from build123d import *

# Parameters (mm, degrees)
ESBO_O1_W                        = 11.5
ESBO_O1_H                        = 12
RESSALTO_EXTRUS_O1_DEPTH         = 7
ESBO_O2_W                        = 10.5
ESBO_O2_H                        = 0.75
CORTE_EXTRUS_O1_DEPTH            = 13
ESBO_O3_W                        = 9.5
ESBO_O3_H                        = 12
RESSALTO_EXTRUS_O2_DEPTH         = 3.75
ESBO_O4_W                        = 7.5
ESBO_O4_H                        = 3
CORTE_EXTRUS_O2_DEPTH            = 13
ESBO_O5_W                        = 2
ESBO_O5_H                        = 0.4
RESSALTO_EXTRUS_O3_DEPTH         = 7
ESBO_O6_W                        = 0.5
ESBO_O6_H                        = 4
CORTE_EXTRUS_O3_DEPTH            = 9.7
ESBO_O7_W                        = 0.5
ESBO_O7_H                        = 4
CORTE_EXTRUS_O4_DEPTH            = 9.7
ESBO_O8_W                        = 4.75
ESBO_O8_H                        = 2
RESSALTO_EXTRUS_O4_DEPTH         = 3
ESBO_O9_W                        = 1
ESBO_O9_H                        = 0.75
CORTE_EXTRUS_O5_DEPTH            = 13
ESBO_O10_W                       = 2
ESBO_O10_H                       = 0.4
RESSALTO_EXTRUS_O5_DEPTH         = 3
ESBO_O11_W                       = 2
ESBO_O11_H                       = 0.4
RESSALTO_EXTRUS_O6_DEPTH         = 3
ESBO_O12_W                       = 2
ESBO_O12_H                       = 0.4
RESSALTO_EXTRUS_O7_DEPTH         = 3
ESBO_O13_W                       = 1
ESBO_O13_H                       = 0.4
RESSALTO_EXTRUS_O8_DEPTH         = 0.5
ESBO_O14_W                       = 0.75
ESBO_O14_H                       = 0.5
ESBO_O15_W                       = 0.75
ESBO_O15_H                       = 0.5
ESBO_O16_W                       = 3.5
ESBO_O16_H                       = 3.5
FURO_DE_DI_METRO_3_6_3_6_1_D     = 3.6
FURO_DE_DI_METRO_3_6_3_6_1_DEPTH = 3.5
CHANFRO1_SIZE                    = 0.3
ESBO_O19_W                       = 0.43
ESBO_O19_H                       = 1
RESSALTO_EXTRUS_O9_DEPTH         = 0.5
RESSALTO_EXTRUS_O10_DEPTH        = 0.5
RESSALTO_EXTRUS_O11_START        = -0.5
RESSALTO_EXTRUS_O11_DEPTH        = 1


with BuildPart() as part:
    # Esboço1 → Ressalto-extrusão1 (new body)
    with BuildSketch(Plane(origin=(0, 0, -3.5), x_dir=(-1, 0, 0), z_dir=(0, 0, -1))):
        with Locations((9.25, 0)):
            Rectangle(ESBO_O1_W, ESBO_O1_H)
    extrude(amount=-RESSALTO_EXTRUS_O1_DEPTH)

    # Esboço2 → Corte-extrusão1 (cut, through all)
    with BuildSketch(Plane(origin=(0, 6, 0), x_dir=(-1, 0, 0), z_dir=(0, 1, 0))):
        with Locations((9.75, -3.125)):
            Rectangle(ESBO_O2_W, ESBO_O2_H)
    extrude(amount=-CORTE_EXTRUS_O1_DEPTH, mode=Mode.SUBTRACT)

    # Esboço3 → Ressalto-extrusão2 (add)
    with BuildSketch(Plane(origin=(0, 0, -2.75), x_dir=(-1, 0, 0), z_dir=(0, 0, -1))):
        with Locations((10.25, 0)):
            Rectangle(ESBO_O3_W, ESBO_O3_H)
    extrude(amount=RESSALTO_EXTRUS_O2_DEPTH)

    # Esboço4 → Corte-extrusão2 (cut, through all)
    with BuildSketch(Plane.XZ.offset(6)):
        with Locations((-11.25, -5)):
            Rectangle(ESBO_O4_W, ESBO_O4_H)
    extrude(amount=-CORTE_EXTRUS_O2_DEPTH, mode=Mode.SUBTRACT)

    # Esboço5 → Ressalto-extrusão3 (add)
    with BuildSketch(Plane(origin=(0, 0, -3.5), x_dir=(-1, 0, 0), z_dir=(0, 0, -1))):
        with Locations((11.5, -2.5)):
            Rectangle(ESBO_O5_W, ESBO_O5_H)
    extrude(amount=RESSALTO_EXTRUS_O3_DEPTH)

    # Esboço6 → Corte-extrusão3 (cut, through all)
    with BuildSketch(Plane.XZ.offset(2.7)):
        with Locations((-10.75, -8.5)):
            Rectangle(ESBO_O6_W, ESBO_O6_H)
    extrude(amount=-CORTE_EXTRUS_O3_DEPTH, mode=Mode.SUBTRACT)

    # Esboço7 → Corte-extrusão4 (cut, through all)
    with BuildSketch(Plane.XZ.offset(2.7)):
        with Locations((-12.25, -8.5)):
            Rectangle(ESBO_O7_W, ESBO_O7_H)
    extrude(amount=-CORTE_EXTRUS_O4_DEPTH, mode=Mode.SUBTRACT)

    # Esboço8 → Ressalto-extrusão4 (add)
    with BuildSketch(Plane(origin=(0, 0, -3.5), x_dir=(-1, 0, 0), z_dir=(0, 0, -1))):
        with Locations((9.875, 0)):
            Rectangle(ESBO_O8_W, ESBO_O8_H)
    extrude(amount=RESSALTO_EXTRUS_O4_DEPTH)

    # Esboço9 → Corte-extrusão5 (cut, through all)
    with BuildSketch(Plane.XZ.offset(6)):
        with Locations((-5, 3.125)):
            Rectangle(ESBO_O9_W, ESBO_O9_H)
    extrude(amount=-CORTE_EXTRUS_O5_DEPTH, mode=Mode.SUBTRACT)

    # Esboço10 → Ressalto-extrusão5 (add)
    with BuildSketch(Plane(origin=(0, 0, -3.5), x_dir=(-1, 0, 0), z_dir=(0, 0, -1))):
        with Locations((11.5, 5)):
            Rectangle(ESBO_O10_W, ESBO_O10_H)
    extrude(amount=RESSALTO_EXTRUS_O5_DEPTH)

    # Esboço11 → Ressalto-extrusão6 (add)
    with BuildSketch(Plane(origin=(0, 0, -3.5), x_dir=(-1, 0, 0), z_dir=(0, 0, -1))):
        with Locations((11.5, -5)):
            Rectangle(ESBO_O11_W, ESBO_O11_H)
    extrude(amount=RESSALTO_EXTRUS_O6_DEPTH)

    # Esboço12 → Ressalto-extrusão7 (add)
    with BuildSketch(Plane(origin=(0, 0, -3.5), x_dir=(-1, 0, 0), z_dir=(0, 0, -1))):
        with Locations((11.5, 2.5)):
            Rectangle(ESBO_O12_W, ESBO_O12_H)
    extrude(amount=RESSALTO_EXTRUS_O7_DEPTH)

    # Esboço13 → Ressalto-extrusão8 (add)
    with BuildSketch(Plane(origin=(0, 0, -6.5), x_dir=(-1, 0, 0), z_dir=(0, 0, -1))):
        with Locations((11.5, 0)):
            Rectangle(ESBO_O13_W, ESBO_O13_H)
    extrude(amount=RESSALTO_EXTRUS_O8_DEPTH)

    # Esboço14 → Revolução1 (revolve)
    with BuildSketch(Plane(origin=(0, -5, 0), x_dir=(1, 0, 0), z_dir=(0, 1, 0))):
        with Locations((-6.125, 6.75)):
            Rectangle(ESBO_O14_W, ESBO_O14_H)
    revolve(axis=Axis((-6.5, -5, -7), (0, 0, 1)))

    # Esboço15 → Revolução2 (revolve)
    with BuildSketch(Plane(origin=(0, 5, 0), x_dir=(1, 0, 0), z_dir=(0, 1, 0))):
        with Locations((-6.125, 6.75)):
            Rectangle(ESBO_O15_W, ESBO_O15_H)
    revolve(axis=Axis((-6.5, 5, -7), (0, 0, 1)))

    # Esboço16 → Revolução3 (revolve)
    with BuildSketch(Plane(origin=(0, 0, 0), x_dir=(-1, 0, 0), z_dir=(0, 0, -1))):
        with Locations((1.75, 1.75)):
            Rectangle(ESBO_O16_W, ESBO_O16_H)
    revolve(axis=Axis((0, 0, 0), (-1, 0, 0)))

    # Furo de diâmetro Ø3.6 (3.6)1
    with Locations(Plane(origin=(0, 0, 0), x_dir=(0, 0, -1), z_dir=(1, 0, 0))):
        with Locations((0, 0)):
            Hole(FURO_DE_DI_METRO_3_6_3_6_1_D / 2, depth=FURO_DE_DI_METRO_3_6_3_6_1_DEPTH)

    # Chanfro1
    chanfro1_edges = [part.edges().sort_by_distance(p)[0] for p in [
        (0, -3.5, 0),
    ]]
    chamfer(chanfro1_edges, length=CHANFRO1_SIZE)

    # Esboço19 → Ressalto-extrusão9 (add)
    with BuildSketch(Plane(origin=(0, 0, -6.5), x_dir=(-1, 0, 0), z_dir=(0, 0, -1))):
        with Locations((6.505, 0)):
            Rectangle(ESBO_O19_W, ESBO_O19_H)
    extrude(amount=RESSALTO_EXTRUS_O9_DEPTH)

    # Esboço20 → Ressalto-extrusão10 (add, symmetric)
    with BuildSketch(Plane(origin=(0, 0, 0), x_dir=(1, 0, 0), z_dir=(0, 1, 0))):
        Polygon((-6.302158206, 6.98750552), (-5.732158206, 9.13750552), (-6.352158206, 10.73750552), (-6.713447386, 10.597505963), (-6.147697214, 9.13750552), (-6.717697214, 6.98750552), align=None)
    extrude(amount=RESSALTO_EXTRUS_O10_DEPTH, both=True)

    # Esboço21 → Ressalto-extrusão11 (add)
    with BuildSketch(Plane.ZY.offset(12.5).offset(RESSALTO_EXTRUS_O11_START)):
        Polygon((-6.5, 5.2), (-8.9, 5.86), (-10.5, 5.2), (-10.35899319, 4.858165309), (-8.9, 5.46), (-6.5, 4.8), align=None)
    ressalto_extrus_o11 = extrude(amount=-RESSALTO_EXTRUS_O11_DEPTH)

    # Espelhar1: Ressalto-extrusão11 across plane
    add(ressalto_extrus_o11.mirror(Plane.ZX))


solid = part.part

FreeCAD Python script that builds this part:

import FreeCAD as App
import Part
import Sketcher

V = App.Vector
Q = App.Units.Quantity


def edges_at(feature, points):
    """Names of the edges that pass closest to the given points."""
    edges = feature.Shape.Edges
    near = lambda p: min(range(len(edges)), key=lambda i: edges[i].distToShape(Part.Vertex(*p))[0])
    return sorted({f"Edge{near(p) + 1}" for p in points})


def add_polygon(sketch, points):
    """Adds a closed chain of lines whose ends are joined by coincident constraints."""
    first, n = sketch.GeometryCount, len(points)
    for a, b in zip(points, points[1:] + points[:1]):
        sketch.addGeometry(Part.LineSegment(App.Vector(*a, 0), App.Vector(*b, 0)), False)
    for i in range(n):
        sketch.addConstraint(Sketcher.Constraint("Coincident", first + i, 2, first + (i + 1) % n, 1))

doc = App.newDocument("Part")
body = doc.addObject("PartDesign::Body", "Body")

# Sketch on XY plane
sketch1 = body.newObject("Sketcher::SketchObject", "Sketch")
sketch1.AttachmentSupport = (doc.getObject("XY_Plane"), [""])
sketch1.MapMode = "FlatFace"
sketch1.AttachmentOffset = App.Placement(V(0, 0, -3.5), App.Rotation())
add_polygon(sketch1, [(-3.5, 6), (-3.5, -6), (-15, -6), (-15, 6)])  # lines 0-3
sketch1.addConstraint([
    Sketcher.Constraint("Vertical", 0),
    Sketcher.Constraint("Horizontal", 1),
    Sketcher.Constraint("Vertical", 2),
    Sketcher.Constraint("Horizontal", 3),
    Sketcher.Constraint("DistanceY", 0, 2, 0, 1, Q("12 mm")),
    Sketcher.Constraint("DistanceX", 1, 2, 1, 1, Q("11.5 mm")),
    Sketcher.Constraint("DistanceY", 0, 2, -1, 1, Q("6 mm")),
    Sketcher.Constraint("DistanceX", 1, 2, -1, 1, Q("15 mm")),
])
pad1 = body.newObject("PartDesign::Pad", "Pad")
pad1.Profile = sketch1
pad1.Length = 7

# Sketch on XZ plane
sketch2 = body.newObject("Sketcher::SketchObject", "Sketch001")
sketch2.AttachmentSupport = (doc.getObject("XZ_Plane"), [""])
sketch2.MapMode = "FlatFace"
sketch2.AttachmentOffset = App.Placement(V(0, 0, -6), App.Rotation())
add_polygon(sketch2, [(-4.5, -2.75), (-4.5, -3.5), (-15, -3.5), (-15, -2.75)])  # lines 0-3
sketch2.addConstraint([
    Sketcher.Constraint("Vertical", 0),
    Sketcher.Constraint("Horizontal", 1),
    Sketcher.Constraint("Vertical", 2),
    Sketcher.Constraint("Horizontal", 3),
    Sketcher.Constraint("DistanceX", 1, 2, 1, 1, Q("10.5 mm")),
    Sketcher.Constraint("DistanceX", 1, 2, -1, 1, Q("15 mm")),
    Sketcher.Constraint("DistanceY", 0, 2, 0, 1, Q("0.75 mm")),
    Sketcher.Constraint("DistanceY", 0, 2, -1, 1, Q("3.5 mm")),
])
pocket1 = body.newObject("PartDesign::Pocket", "Pocket")
pocket1.Profile = sketch2
pocket1.Type = "ThroughAll"
pocket1.Reversed = True

# Sketch on XY plane
sketch3 = body.newObject("Sketcher::SketchObject", "Sketch002")
sketch3.AttachmentSupport = (doc.getObject("XY_Plane"), [""])
sketch3.MapMode = "FlatFace"
sketch3.AttachmentOffset = App.Placement(V(0, 0, -2.75), App.Rotation())
add_polygon(sketch3, [(-5.5, 6), (-5.5, -6), (-15, -6), (-15, 6)])  # lines 0-3
sketch3.addConstraint([
    Sketcher.Constraint("Vertical", 0),
    Sketcher.Constraint("Horizontal", 1),
    Sketcher.Constraint("Vertical", 2),
    Sketcher.Constraint("Horizontal", 3),
    Sketcher.Constraint("DistanceY", 0, 2, 0, 1, Q("12 mm")),
    Sketcher.Constraint("DistanceX", 1, 2, 1, 1, Q("9.5 mm")),
    Sketcher.Constraint("DistanceY", 0, 2, -1, 1, Q("6 mm")),
    Sketcher.Constraint("DistanceX", 1, 2, -1, 1, Q("15 mm")),
])
pad2 = body.newObject("PartDesign::Pad", "Pad001")
pad2.Profile = sketch3
pad2.Length = 3.75
pad2.Reversed = True

# Sketch on XZ plane
sketch4 = body.newObject("Sketcher::SketchObject", "Sketch003")
sketch4.AttachmentSupport = (doc.getObject("XZ_Plane"), [""])
sketch4.MapMode = "FlatFace"
sketch4.AttachmentOffset = App.Placement(V(0, 0, 6), App.Rotation())
add_polygon(sketch4, [(-15, -3.5), (-15, -6.5), (-7.5, -6.5), (-7.5, -3.5)])  # lines 0-3
sketch4.addConstraint([
    Sketcher.Constraint("Vertical", 0),
    Sketcher.Constraint("Horizontal", 1),
    Sketcher.Constraint("Vertical", 2),
    Sketcher.Constraint("Horizontal", 3),
    Sketcher.Constraint("DistanceY", 0, 2, 0, 1, Q("3 mm")),
    Sketcher.Constraint("DistanceX", 1, 1, 1, 2, Q("7.5 mm")),
    Sketcher.Constraint("DistanceX", 0, 2, -1, 1, Q("15 mm")),
    Sketcher.Constraint("DistanceY", 0, 2, -1, 1, Q("6.5 mm")),
])
pocket2 = body.newObject("PartDesign::Pocket", "Pocket001")
pocket2.Profile = sketch4
pocket2.Type = "ThroughAll"

# Sketch on XY plane
sketch5 = body.newObject("Sketcher::SketchObject", "Sketch004")
sketch5.AttachmentSupport = (doc.getObject("XY_Plane"), [""])
sketch5.MapMode = "FlatFace"
sketch5.AttachmentOffset = App.Placement(V(0, 0, -3.5), App.Rotation())
add_polygon(sketch5, [(-10.5, -2.3), (-10.5, -2.7), (-12.5, -2.7), (-12.5, -2.3)])  # lines 0-3
sketch5.addConstraint([
    Sketcher.Constraint("Vertical", 0),
    Sketcher.Constraint("Horizontal", 1),
    Sketcher.Constraint("Vertical", 2),
    Sketcher.Constraint("Horizontal", 3),
    Sketcher.Constraint("DistanceX", 1, 2, 1, 1, Q("2 mm")),
    Sketcher.Constraint("DistanceY", 0, 2, 0, 1, Q("0.4 mm")),
    Sketcher.Constraint("DistanceX", 0, 2, -1, 1, Q("10.5 mm")),
    Sketcher.Constraint("DistanceY", 0, 2, -1, 1, Q("2.7 mm")),
])
pad3 = body.newObject("PartDesign::Pad", "Pad002")
pad3.Profile = sketch5
pad3.Length = 7
pad3.Reversed = True

# Sketch on XZ plane
sketch6 = body.newObject("Sketcher::SketchObject", "Sketch005")
sketch6.AttachmentSupport = (doc.getObject("XZ_Plane"), [""])
sketch6.MapMode = "FlatFace"
sketch6.AttachmentOffset = App.Placement(V(0, 0, 2.7), App.Rotation())
add_polygon(sketch6, [(-11, -6.5), (-11, -10.5), (-10.5, -10.5), (-10.5, -6.5)])  # lines 0-3
sketch6.addConstraint([
    Sketcher.Constraint("Vertical", 0),
    Sketcher.Constraint("Horizontal", 1),
    Sketcher.Constraint("Vertical", 2),
    Sketcher.Constraint("Horizontal", 3),
    Sketcher.Constraint("DistanceY", 0, 2, 0, 1, Q("4 mm")),
    Sketcher.Constraint("DistanceX", 1, 1, 1, 2, Q("0.5 mm")),
    Sketcher.Constraint("DistanceX", 0, 2, -1, 1, Q("11 mm")),
    Sketcher.Constraint("DistanceY", 0, 2, -1, 1, Q("10.5 mm")),
])
pocket3 = body.newObject("PartDesign::Pocket", "Pocket002")
pocket3.Profile = sketch6
pocket3.Type = "ThroughAll"

# Sketch on XZ plane
sketch7 = body.newObject("Sketcher::SketchObject", "Sketch006")
sketch7.AttachmentSupport = (doc.getObject("XZ_Plane"), [""])
sketch7.MapMode = "FlatFace"
sketch7.AttachmentOffset = App.Placement(V(0, 0, 2.7), App.Rotation())
add_polygon(sketch7, [(-12.5, -6.5), (-12.5, -10.5), (-12, -10.5), (-12, -6.5)])  # lines 0-3
sketch7.addConstraint([
    Sketcher.Constraint("Vertical", 0),
    Sketcher.Constraint("Horizontal", 1),
    Sketcher.Constraint("Vertical", 2),
    Sketcher.Constraint("Horizontal", 3),
    Sketcher.Constraint("DistanceY", 0, 2, 0, 1, Q("4 mm")),
    Sketcher.Constraint("DistanceX", 1, 1, 1, 2, Q("0.5 mm")),
    Sketcher.Constraint("DistanceX", 1, 2, -1, 1, Q("12 mm")),
    Sketcher.Constraint("DistanceY", 0, 2, -1, 1, Q("10.5 mm")),
])
pocket4 = body.newObject("PartDesign::Pocket", "Pocket003")
pocket4.Profile = sketch7
pocket4.Type = "ThroughAll"

# Sketch on XY plane
sketch8 = body.newObject("Sketcher::SketchObject", "Sketch007")
sketch8.AttachmentSupport = (doc.getObject("XY_Plane"), [""])
sketch8.MapMode = "FlatFace"
sketch8.AttachmentOffset = App.Placement(V(0, 0, -3.5), App.Rotation())
add_polygon(sketch8, [(-7.5, 1), (-7.5, -1), (-12.25, -1), (-12.25, 1)])  # lines 0-3
sketch8.addConstraint([
    Sketcher.Constraint("Vertical", 0),
    Sketcher.Constraint("Horizontal", 1),
    Sketcher.Constraint("Vertical", 2),
    Sketcher.Constraint("Horizontal", 3),
    Sketcher.Constraint("DistanceY", 0, 2, 0, 1, Q("2 mm")),
    Sketcher.Constraint("DistanceY", 0, 2, -1, 1, Q("1 mm")),
    Sketcher.Constraint("DistanceX", 1, 2, 1, 1, Q("4.75 mm")),
    Sketcher.Constraint("DistanceX", 0, 2, -1, 1, Q("7.5 mm")),
])
pad4 = body.newObject("PartDesign::Pad", "Pad003")
pad4.Profile = sketch8
pad4.Length = 3
pad4.Reversed = True

# Sketch on XZ plane
sketch9 = body.newObject("Sketcher::SketchObject", "Sketch008")
sketch9.AttachmentSupport = (doc.getObject("XZ_Plane"), [""])
sketch9.MapMode = "FlatFace"
sketch9.AttachmentOffset = App.Placement(V(0, 0, 6), App.Rotation())
add_polygon(sketch9, [(-5.5, 3.5), (-5.5, 2.75), (-4.5, 2.75), (-4.5, 3.5)])  # lines 0-3
sketch9.addConstraint([
    Sketcher.Constraint("Vertical", 0),
    Sketcher.Constraint("Horizontal", 1),
    Sketcher.Constraint("Vertical", 2),
    Sketcher.Constraint("Horizontal", 3),
    Sketcher.Constraint("DistanceX", 1, 1, 1, 2, Q("1 mm")),
    Sketcher.Constraint("DistanceY", 0, 2, 0, 1, Q("0.75 mm")),
    Sketcher.Constraint("DistanceX", 0, 2, -1, 1, Q("5.5 mm")),
    Sketcher.Constraint("DistanceY", -1, 1, 2, 2, Q("3.5 mm")),
])
pocket5 = body.newObject("PartDesign::Pocket", "Pocket004")
pocket5.Profile = sketch9
pocket5.Type = "ThroughAll"

# Sketch on XY plane
sketch10 = body.newObject("Sketcher::SketchObject", "Sketch009")
sketch10.AttachmentSupport = (doc.getObject("XY_Plane"), [""])
sketch10.MapMode = "FlatFace"
sketch10.AttachmentOffset = App.Placement(V(0, 0, -3.5), App.Rotation())
add_polygon(sketch10, [(-10.5, 5.2), (-10.5, 4.8), (-12.5, 4.8), (-12.5, 5.2)])  # lines 0-3
sketch10.addConstraint([
    Sketcher.Constraint("Vertical", 0),
    Sketcher.Constraint("Horizontal", 1),
    Sketcher.Constraint("Vertical", 2),
    Sketcher.Constraint("Horizontal", 3),
    Sketcher.Constraint("DistanceX", 1, 2, 1, 1, Q("2 mm")),
    Sketcher.Constraint("DistanceY", 0, 2, 0, 1, Q("0.4 mm")),
    Sketcher.Constraint("DistanceX", 0, 2, -1, 1, Q("10.5 mm")),
    Sketcher.Constraint("DistanceY", -1, 1, 0, 2, Q("4.8 mm")),
])
pad5 = body.newObject("PartDesign::Pad", "Pad004")
pad5.Profile = sketch10
pad5.Length = 3
pad5.Reversed = True

# Sketch on XY plane
sketch11 = body.newObject("Sketcher::SketchObject", "Sketch010")
sketch11.AttachmentSupport = (doc.getObject("XY_Plane"), [""])
sketch11.MapMode = "FlatFace"
sketch11.AttachmentOffset = App.Placement(V(0, 0, -3.5), App.Rotation())
add_polygon(sketch11, [(-10.5, -4.8), (-10.5, -5.2), (-12.5, -5.2), (-12.5, -4.8)])  # lines 0-3
sketch11.addConstraint([
    Sketcher.Constraint("Vertical", 0),
    Sketcher.Constraint("Horizontal", 1),
    Sketcher.Constraint("Vertical", 2),
    Sketcher.Constraint("Horizontal", 3),
    Sketcher.Constraint("DistanceX", 1, 2, 1, 1, Q("2 mm")),
    Sketcher.Constraint("DistanceY", 0, 2, 0, 1, Q("0.4 mm")),
    Sketcher.Constraint("DistanceX", 0, 2, -1, 1, Q("10.5 mm")),
    Sketcher.Constraint("DistanceY", 0, 2, -1, 1, Q("5.2 mm")),
])
pad6 = body.newObject("PartDesign::Pad", "Pad005")
pad6.Profile = sketch11
pad6.Length = 3
pad6.Reversed = True

# Sketch on XY plane
sketch12 = body.newObject("Sketcher::SketchObject", "Sketch011")
sketch12.AttachmentSupport = (doc.getObject("XY_Plane"), [""])
sketch12.MapMode = "FlatFace"
sketch12.AttachmentOffset = App.Placement(V(0, 0, -3.5), App.Rotation())
add_polygon(sketch12, [(-10.5, 2.7), (-10.5, 2.3), (-12.5, 2.3), (-12.5, 2.7)])  # lines 0-3
sketch12.addConstraint([
    Sketcher.Constraint("Vertical", 0),
    Sketcher.Constraint("Horizontal", 1),
    Sketcher.Constraint("Vertical", 2),
    Sketcher.Constraint("Horizontal", 3),
    Sketcher.Constraint("DistanceX", 1, 2, 1, 1, Q("2 mm")),
    Sketcher.Constraint("DistanceY", 0, 2, 0, 1, Q("0.4 mm")),
    Sketcher.Constraint("DistanceX", 0, 2, -1, 1, Q("10.5 mm")),
    Sketcher.Constraint("DistanceY", -1, 1, 0, 2, Q("2.3 mm")),
])
pad7 = body.newObject("PartDesign::Pad", "Pad006")
pad7.Profile = sketch12
pad7.Length = 3
pad7.Reversed = True

# Sketch on XY plane
sketch13 = body.newObject("Sketcher::SketchObject", "Sketch012")
sketch13.AttachmentSupport = (doc.getObject("XY_Plane"), [""])
sketch13.MapMode = "FlatFace"
sketch13.AttachmentOffset = App.Placement(V(0, 0, -6.5), App.Rotation())
add_polygon(sketch13, [(-11, 0.2), (-11, -0.2), (-12, -0.2), (-12, 0.2)])  # lines 0-3
sketch13.addConstraint([
    Sketcher.Constraint("Vertical", 0),
    Sketcher.Constraint("Horizontal", 1),
    Sketcher.Constraint("Vertical", 2),
    Sketcher.Constraint("Horizontal", 3),
    Sketcher.Constraint("DistanceX", 1, 2, 1, 1, Q("1 mm")),
    Sketcher.Constraint("DistanceY", 0, 2, 0, 1, Q("0.4 mm")),
    Sketcher.Constraint("DistanceX", 0, 2, -1, 1, Q("11 mm")),
    Sketcher.Constraint("DistanceY", 0, 2, -1, 1, Q("0.2 mm")),
])
pad8 = body.newObject("PartDesign::Pad", "Pad007")
pad8.Profile = sketch13
pad8.Length = 0.5
pad8.Reversed = True

# Sketch on XZ plane
sketch14 = body.newObject("Sketcher::SketchObject", "Sketch013")
sketch14.AttachmentSupport = (doc.getObject("XZ_Plane"), [""])
sketch14.MapMode = "FlatFace"
sketch14.AttachmentOffset = App.Placement(V(0, 0, 5), App.Rotation())
add_polygon(sketch14, [(-6.5, -7), (-6.5, -6.5), (-5.75, -6.5), (-5.75, -7)])  # lines 0-3
sketch14.addGeometry(Part.LineSegment(V(-6.5, -7, 0), V(-6.5, -6.5, 0)), True)  # axis
sketch14.addConstraint([
    Sketcher.Constraint("Vertical", 0),
    Sketcher.Constraint("Horizontal", 1),
    Sketcher.Constraint("Vertical", 2),
    Sketcher.Constraint("Horizontal", 3),
    Sketcher.Constraint("Vertical", 4),
    Sketcher.Constraint("Coincident", 4, 1, 3, 2),
    Sketcher.Constraint("Horizontal", 1, 2, 4, 2),
    Sketcher.Constraint("DistanceY", 0, 1, 0, 2, Q("0.5 mm")),
    Sketcher.Constraint("DistanceY", 2, 2, -1, 1, Q("7 mm")),
    Sketcher.Constraint("DistanceX", 1, 1, 1, 2, Q("0.75 mm")),
    Sketcher.Constraint("DistanceX", 0, 2, -1, 1, Q("6.5 mm")),
])
revolution = body.newObject("PartDesign::Revolution", "Revolution")
revolution.Profile = sketch14
revolution.ReferenceAxis = (sketch14, ["Axis0"])
revolution.Angle = 360

# Sketch on XZ plane
sketch15 = body.newObject("Sketcher::SketchObject", "Sketch014")
sketch15.AttachmentSupport = (doc.getObject("XZ_Plane"), [""])
sketch15.MapMode = "FlatFace"
sketch15.AttachmentOffset = App.Placement(V(0, 0, -5), App.Rotation())
add_polygon(sketch15, [(-6.5, -7), (-6.5, -6.5), (-5.75, -6.5), (-5.75, -7)])  # lines 0-3
sketch15.addGeometry(Part.LineSegment(V(-6.5, -7, 0), V(-6.5, -6.5, 0)), True)  # axis
sketch15.addConstraint([
    Sketcher.Constraint("Vertical", 0),
    Sketcher.Constraint("Horizontal", 1),
    Sketcher.Constraint("Vertical", 2),
    Sketcher.Constraint("Horizontal", 3),
    Sketcher.Constraint("Vertical", 4),
    Sketcher.Constraint("Coincident", 4, 1, 3, 2),
    Sketcher.Constraint("Horizontal", 1, 2, 4, 2),
    Sketcher.Constraint("DistanceY", 0, 1, 0, 2, Q("0.5 mm")),
    Sketcher.Constraint("DistanceY", 2, 2, -1, 1, Q("7 mm")),
    Sketcher.Constraint("DistanceX", 1, 1, 1, 2, Q("0.75 mm")),
    Sketcher.Constraint("DistanceX", 0, 2, -1, 1, Q("6.5 mm")),
])
revolution2 = body.newObject("PartDesign::Revolution", "Revolution001")
revolution2.Profile = sketch15
revolution2.ReferenceAxis = (sketch15, ["Axis0"])
revolution2.Angle = 360

# Sketch on XY plane
sketch16 = body.newObject("Sketcher::SketchObject", "Sketch015")
sketch16.AttachmentSupport = (doc.getObject("XY_Plane"), [""])
sketch16.MapMode = "FlatFace"
add_polygon(sketch16, [(0, 3.5), (0, 0), (-3.5, 0), (-3.5, 3.5)])  # lines 0-3
sketch16.addConstraint([
    Sketcher.Constraint("Vertical", 0),
    Sketcher.Constraint("Horizontal", 1),
    Sketcher.Constraint("Vertical", 2),
    Sketcher.Constraint("Horizontal", 3),
    Sketcher.Constraint("Coincident", 0, 2, -1, 1),
    Sketcher.Constraint("Equal", 3, 0),
    Sketcher.Constraint("DistanceX", 1, 2, 1, 1, Q("3.5 mm")),
])
revolution3 = body.newObject("PartDesign::Revolution", "Revolution002")
revolution3.Profile = sketch16
revolution3.ReferenceAxis = (sketch16, ["H_Axis"])
revolution3.Angle = 360

# Sketch on YZ plane
sketch17 = body.newObject("Sketcher::SketchObject", "Sketch016")
sketch17.AttachmentSupport = (doc.getObject("YZ_Plane"), [""])
sketch17.MapMode = "FlatFace"
sketch17.addGeometry(Part.Circle(V(0, 0, 0), V(0, 0, 1), 1.8), False)
sketch17.addConstraint([
    Sketcher.Constraint("Coincident", 0, 3, -1, 1),
    Sketcher.Constraint("Diameter", 0, Q("3.6 mm")),
])
doc.recompute()
hole = body.newObject("PartDesign::Hole", "Hole")
hole.Profile = sketch17
hole.ThreadType = "None"
hole.Diameter = 3.6
hole.DepthType = "Dimension"
hole.Depth = 3.5
hole.DrillPoint = "Flat"
doc.recompute()

chamfer = body.newObject("PartDesign::Chamfer", "Chamfer")
chamfer.Base = (hole, edges_at(hole, [(0, -3.5, 0)]))
chamfer.Size = 0.3

# Sketch on XY plane
sketch18 = body.newObject("Sketcher::SketchObject", "Sketch017")
sketch18.AttachmentSupport = (doc.getObject("XY_Plane"), [""])
sketch18.MapMode = "FlatFace"
sketch18.AttachmentOffset = App.Placement(V(0, 0, -6.5), App.Rotation())
add_polygon(sketch18, [(-6.29, 0.5), (-6.29, -0.5), (-6.72, -0.5), (-6.72, 0.5)])  # lines 0-3
sketch18.addConstraint([
    Sketcher.Constraint("Vertical", 0),
    Sketcher.Constraint("Horizontal", 1),
    Sketcher.Constraint("Vertical", 2),
    Sketcher.Constraint("Horizontal", 3),
    Sketcher.Constraint("DistanceY", 0, 2, 0, 1, Q("1 mm")),
    Sketcher.Constraint("DistanceX", 1, 2, 1, 1, Q("0.43 mm")),
    Sketcher.Constraint("DistanceY", 0, 2, -1, 1, Q("0.5 mm")),
    Sketcher.Constraint("DistanceX", 0, 2, -1, 1, Q("6.29 mm")),
])
pad9 = body.newObject("PartDesign::Pad", "Pad008")
pad9.Profile = sketch18
pad9.Length = 0.5
pad9.Reversed = True

# Sketch on XZ plane
sketch19 = body.newObject("Sketcher::SketchObject", "Sketch018")
sketch19.AttachmentSupport = (doc.getObject("XZ_Plane"), [""])
sketch19.MapMode = "FlatFace"
add_polygon(sketch19, [(-6.302158, -6.987506), (-5.732158, -9.137506), (-6.352158, -10.737506), (-6.713447, -10.597506), (-6.147697, -9.137506), (-6.717697, -6.987506)])  # lines 0-5
sketch19.addConstraint([
    Sketcher.Constraint("Horizontal", 5),
    Sketcher.Constraint("Perpendicular", 1, 2),
    Sketcher.Constraint("Perpendicular", 2, 3),
    Sketcher.Constraint("Parallel", 0, 4),
    Sketcher.Constraint("Horizontal", 0, 2, 3, 2),
    Sketcher.Constraint("DistanceY", 1, 2, 0, 2, Q("1.6 mm")),
    Sketcher.Constraint("DistanceX", 1, 2, 0, 2, Q("0.62 mm")),
    Sketcher.Constraint("DistanceY", 1, 2, 2, 2, Q("0.14 mm")),
    Sketcher.Constraint("DistanceX", 4, 2, 3, 2, Q("0.57 mm")),
    Sketcher.Constraint("DistanceY", 3, 2, 4, 2, Q("2.15 mm")),
    Sketcher.Constraint("DistanceX", 0, 2, -1, 1, Q("5.732158 mm")),
    Sketcher.Constraint("DistanceY", 0, 2, -1, 1, Q("9.137506 mm")),
])
pad10 = body.newObject("PartDesign::Pad", "Pad009")
pad10.Profile = sketch19
pad10.Length = 1
pad10.Midplane = True

# Sketch on YZ plane
sketch20 = body.newObject("Sketcher::SketchObject", "Sketch019")
sketch20.AttachmentSupport = (doc.getObject("YZ_Plane"), [""])
sketch20.MapMode = "FlatFace"
sketch20.AttachmentOffset = App.Placement(V(0, 0, -12), App.Rotation())
add_polygon(sketch20, [(5.2, -6.5), (5.86, -8.9), (5.2, -10.5), (4.858165, -10.358993), (5.46, -8.9), (4.8, -6.5)])  # lines 0-5
sketch20.addConstraint([
    Sketcher.Constraint("Horizontal", 5),
    Sketcher.Constraint("Perpendicular", 1, 2),
    Sketcher.Constraint("Perpendicular", 2, 3),
    Sketcher.Constraint("Parallel", 0, 4),
    Sketcher.Constraint("Horizontal", 0, 2, 3, 2),
    Sketcher.Constraint("Vertical", 1, 2, 5, 2),
    Sketcher.Constraint("DistanceX", 5, 1, 5, 2, Q("0.4 mm")),
    Sketcher.Constraint("DistanceY", 1, 2, 4, 2, Q("4 mm")),
    Sketcher.Constraint("DistanceY", 0, 2, -1, 1, Q("8.9 mm")),
    Sketcher.Constraint("DistanceX", -1, 1, 1, 2, Q("5.2 mm")),
    Sketcher.Constraint("DistanceY", 1, 2, -1, 1, Q("10.5 mm")),
    Sketcher.Constraint("DistanceX", -1, 1, 0, 2, Q("5.86 mm")),
])
pad11 = body.newObject("PartDesign::Pad", "Pad010")
pad11.Profile = sketch20
pad11.Length = 1
doc.recompute()

mirrored = body.newObject("PartDesign::Mirrored", "Mirrored")
mirrored.Originals = [pad11]
mirrored.MirrorPlane = (doc.getObject("XZ_Plane"), [""])
body.Tip = mirrored

doc.recompute()
